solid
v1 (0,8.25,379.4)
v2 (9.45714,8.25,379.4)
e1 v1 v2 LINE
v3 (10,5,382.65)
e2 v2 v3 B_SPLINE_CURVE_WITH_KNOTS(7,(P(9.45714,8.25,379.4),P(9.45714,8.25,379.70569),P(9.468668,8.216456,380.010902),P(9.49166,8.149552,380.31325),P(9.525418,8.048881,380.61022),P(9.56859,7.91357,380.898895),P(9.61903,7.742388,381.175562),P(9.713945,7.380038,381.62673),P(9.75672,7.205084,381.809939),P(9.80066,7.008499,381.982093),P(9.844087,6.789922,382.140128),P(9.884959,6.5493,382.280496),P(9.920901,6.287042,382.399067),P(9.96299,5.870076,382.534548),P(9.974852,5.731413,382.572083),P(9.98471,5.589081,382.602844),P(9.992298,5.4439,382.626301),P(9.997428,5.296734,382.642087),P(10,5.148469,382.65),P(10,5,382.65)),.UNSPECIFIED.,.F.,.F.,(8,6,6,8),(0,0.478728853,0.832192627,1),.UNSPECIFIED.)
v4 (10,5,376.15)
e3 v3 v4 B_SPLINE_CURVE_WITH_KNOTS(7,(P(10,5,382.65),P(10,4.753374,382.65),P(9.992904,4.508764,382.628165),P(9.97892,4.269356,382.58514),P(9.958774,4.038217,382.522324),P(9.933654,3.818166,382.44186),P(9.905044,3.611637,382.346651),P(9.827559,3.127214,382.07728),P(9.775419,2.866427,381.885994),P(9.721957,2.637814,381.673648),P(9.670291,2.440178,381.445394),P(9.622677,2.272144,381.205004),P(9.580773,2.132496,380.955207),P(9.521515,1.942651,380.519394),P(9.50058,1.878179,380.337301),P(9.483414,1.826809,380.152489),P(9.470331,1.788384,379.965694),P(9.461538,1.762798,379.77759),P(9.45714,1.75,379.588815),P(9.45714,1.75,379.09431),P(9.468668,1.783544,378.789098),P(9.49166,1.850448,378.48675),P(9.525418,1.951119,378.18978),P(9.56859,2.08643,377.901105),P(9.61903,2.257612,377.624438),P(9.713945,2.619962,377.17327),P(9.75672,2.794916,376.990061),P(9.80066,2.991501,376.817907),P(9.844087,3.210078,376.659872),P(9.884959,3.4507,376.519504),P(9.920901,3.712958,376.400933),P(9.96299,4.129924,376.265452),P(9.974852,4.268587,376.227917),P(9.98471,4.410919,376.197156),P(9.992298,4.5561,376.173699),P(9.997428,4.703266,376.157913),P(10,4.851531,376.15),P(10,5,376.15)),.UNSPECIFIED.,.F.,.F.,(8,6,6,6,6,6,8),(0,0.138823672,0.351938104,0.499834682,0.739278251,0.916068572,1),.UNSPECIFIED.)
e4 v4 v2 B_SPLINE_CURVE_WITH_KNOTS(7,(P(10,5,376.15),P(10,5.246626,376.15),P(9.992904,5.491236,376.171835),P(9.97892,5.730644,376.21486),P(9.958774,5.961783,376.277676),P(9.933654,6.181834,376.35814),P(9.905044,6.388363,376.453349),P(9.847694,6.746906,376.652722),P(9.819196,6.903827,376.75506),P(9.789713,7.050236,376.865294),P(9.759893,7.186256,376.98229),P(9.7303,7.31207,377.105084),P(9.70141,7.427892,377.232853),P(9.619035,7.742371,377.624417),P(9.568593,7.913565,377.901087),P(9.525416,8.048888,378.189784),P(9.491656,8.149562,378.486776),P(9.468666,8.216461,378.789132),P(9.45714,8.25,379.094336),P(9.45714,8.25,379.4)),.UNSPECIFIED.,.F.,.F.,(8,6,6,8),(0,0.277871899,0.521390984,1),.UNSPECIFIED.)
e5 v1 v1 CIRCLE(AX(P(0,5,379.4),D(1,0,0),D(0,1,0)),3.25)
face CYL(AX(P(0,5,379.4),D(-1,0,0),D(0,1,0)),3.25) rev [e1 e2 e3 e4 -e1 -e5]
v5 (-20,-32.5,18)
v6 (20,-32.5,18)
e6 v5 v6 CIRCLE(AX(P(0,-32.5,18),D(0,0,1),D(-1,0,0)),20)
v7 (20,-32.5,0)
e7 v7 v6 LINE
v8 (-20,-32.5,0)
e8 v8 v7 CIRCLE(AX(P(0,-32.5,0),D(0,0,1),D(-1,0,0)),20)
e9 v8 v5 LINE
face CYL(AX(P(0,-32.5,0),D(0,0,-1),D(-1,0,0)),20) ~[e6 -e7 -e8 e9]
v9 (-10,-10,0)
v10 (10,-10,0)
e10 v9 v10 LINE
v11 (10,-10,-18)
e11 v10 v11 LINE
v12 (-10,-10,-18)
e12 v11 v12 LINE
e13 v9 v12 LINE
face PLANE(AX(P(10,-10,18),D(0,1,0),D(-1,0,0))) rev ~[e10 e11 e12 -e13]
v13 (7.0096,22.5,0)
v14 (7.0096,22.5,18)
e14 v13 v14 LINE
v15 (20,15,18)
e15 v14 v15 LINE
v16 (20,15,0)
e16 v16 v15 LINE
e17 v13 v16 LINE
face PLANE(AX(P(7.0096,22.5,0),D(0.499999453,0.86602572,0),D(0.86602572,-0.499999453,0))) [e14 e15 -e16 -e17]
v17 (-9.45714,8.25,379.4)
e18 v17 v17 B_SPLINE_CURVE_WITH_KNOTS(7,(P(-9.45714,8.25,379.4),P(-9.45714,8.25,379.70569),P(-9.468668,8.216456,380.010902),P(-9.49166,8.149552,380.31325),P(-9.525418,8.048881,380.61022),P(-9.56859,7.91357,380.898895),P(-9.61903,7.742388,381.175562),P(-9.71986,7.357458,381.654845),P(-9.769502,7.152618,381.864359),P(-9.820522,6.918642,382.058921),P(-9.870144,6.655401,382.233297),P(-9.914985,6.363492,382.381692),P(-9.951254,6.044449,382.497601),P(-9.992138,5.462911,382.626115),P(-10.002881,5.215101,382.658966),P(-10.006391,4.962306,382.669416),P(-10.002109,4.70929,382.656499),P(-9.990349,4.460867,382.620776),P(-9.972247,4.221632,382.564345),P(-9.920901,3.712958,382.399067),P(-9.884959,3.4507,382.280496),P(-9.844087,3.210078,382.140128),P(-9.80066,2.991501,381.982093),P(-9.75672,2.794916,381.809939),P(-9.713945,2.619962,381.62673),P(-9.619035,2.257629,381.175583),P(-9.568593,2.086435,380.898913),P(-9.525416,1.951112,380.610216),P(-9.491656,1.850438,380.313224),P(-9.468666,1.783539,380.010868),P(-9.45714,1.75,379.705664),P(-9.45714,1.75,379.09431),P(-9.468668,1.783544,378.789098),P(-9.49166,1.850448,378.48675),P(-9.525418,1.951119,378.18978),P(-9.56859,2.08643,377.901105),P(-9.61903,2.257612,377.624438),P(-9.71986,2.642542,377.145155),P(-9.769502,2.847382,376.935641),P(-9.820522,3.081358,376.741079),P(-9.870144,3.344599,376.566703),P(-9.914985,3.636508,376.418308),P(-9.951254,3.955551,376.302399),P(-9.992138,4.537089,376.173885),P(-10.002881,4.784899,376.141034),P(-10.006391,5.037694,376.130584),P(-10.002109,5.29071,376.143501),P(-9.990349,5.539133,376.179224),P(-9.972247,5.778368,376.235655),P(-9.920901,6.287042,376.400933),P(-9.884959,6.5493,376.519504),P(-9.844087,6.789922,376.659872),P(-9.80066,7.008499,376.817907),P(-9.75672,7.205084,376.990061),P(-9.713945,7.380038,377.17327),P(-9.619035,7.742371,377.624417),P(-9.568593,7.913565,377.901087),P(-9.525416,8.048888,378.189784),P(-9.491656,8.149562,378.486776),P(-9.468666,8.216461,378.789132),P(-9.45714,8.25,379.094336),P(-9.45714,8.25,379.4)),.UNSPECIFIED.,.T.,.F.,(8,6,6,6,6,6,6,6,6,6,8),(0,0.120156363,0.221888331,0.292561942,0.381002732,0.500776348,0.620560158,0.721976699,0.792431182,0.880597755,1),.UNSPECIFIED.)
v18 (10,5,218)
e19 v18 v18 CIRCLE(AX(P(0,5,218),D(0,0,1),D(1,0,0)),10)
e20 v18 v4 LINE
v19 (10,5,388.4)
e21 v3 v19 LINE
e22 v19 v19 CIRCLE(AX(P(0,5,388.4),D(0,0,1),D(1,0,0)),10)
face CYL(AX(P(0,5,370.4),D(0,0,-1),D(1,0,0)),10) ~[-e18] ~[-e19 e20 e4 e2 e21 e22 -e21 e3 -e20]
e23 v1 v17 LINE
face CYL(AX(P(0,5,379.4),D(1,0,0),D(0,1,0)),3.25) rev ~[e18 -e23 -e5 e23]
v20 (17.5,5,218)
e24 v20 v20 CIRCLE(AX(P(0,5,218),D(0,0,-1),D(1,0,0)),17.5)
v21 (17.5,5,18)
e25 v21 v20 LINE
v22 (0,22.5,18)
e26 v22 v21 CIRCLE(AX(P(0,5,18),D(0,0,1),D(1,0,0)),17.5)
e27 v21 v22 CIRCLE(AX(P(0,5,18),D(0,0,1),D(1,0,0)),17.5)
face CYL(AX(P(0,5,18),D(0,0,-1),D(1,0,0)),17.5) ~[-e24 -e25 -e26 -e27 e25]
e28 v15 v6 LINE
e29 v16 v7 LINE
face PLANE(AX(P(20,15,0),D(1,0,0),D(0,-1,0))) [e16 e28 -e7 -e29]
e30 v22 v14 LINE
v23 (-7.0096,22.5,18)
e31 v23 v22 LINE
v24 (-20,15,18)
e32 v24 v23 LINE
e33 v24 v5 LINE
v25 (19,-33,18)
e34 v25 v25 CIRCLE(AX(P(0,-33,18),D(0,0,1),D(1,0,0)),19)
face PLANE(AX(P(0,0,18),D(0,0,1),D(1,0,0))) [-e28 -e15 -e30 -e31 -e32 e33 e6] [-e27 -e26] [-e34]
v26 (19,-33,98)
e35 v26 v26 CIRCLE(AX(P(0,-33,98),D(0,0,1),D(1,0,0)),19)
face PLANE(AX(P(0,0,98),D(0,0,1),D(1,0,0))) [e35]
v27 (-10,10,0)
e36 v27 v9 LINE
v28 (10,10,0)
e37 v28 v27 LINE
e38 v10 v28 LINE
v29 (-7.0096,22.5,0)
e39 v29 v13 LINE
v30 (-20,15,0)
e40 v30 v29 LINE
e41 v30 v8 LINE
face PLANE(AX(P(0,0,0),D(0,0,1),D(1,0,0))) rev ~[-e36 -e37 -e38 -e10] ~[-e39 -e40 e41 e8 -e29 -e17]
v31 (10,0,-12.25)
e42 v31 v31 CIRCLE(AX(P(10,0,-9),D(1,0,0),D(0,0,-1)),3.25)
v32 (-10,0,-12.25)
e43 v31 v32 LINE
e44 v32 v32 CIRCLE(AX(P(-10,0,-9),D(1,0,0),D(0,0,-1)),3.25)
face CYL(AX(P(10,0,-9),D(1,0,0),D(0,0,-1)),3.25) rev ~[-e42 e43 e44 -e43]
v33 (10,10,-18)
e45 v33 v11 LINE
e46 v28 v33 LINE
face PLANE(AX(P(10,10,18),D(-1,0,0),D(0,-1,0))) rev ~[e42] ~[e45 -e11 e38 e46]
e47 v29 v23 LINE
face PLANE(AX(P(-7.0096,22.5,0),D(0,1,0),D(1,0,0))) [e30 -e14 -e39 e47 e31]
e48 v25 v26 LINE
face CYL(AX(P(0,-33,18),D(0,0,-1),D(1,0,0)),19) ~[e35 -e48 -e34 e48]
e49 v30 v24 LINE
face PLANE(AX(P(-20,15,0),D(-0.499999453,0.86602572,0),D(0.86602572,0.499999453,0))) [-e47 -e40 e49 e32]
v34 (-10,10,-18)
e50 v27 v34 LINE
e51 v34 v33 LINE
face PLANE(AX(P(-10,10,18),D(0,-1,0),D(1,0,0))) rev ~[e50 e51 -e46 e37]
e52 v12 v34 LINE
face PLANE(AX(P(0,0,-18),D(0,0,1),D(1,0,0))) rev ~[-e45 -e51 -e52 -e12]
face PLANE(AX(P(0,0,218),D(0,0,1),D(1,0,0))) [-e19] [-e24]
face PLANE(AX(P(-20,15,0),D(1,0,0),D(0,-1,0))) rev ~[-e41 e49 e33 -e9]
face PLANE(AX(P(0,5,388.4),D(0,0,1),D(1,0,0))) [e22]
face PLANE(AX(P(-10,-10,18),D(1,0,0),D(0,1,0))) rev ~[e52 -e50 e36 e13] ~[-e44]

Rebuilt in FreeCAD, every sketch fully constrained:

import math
import FreeCAD as App
import Part
import Sketcher
Q = App.Units.Quantity


def add_polygon(sketch, points):
    """Adds a closed chain of lines whose ends are joined by coincident constraints."""
    first, n = sketch.GeometryCount, len(points)
    for a, b in zip(points, points[1:] + points[:1]):
        sketch.addGeometry(Part.LineSegment(App.Vector(*a, 0), App.Vector(*b, 0)), False)
    for i in range(n):
        sketch.addConstraint(Sketcher.Constraint("Coincident", first + i, 2, first + (i + 1) % n, 1))

doc = App.newDocument("Part")
body = doc.addObject("PartDesign::Body", "Body")

# Sketch on XY plane
sketch1 = body.newObject("Sketcher::SketchObject", "Sketch")
sketch1.AttachmentSupport = (doc.getObject("XY_Plane"), [""])
sketch1.MapMode = "FlatFace"
sketch1.addGeometry(Part.LineSegment(App.Vector(-7, 22, 0), App.Vector(-20, 15, 0)), False)  # 0
sketch1.addGeometry(Part.LineSegment(App.Vector(-20, 15, 0), App.Vector(-20, -32, 0)), False)  # 1
sketch1.addGeometry(Part.ArcOfCircle(Part.Circle(App.Vector(0, -32, 0), App.Vector(0, 0, 1), 20), math.radians(180), math.radians(360)), False)  # 2
sketch1.addGeometry(Part.LineSegment(App.Vector(20, -32, 0), App.Vector(20, 15, 0)), False)  # 3
sketch1.addGeometry(Part.LineSegment(App.Vector(20, 15, 0), App.Vector(7, 22, 0)), False)  # 4
sketch1.addGeometry(Part.LineSegment(App.Vector(7, 22, 0), App.Vector(-7, 22, 0)), False)  # 5
add_polygon(sketch1, [(10, -10), (-10, -10), (-10, 10), (10, 10)])  # lines 6-9
sketch1.addConstraint(Sketcher.Constraint("Coincident", 0, 2, 1, 1))
sketch1.addConstraint(Sketcher.Constraint("Tangent", 1, 2, 2, 1))
sketch1.addConstraint(Sketcher.Constraint("Tangent", 2, 2, 3, 1))
sketch1.addConstraint(Sketcher.Constraint("Coincident", 3, 2, 4, 1))
sketch1.addConstraint(Sketcher.Constraint("Coincident", 4, 2, 5, 1))
sketch1.addConstraint(Sketcher.Constraint("Coincident", 5, 2, 0, 1))
sketch1.addConstraint(Sketcher.Constraint("Vertical", 1))
sketch1.addConstraint(Sketcher.Constraint("Vertical", 3))
sketch1.addConstraint(Sketcher.Constraint("Horizontal", 5))
sketch1.addConstraint(Sketcher.Constraint("Horizontal", 6))
sketch1.addConstraint(Sketcher.Constraint("Vertical", 7))
sketch1.addConstraint(Sketcher.Constraint("Horizontal", 8))
sketch1.addConstraint(Sketcher.Constraint("Vertical", 9))
sketch1.addConstraint(Sketcher.Constraint("Symmetric", 6, 2, 8, 2, -1, 1))
sketch1.addConstraint(Sketcher.Constraint("Symmetric", 0, 2, 3, 2, -2))
sketch1.addConstraint(Sketcher.Constraint("Equal", 8, 7))
sketch1.addConstraint(Sketcher.Constraint("Equal", 0, 4))
sketch1.addConstraint(Sketcher.Constraint("Radius", 2, 20.0))
sketch1.addConstraint(Sketcher.Constraint("DistanceX", 6, 2, 6, 1, 20.0))
sketch1.addConstraint(Sketcher.Constraint("Angle", 0, Q("-150 deg")))
sketch1.addConstraint(Sketcher.Constraint("Distance", 0, 15.0))
sketch1.addConstraint(Sketcher.Constraint("DistanceY", -1, 1, 0, 2, 15.0))
sketch1.addConstraint(Sketcher.Constraint("DistanceY", 2, 3, 4, 2, 55.0))
pad1 = body.newObject("PartDesign::Pad", "Pad")
pad1.Profile = sketch1
pad1.Length = 18

# Sketch on XY plane
sketch2 = body.newObject("Sketcher::SketchObject", "Sketch001")
sketch2.AttachmentSupport = (doc.getObject("XY_Plane"), [""])
sketch2.MapMode = "FlatFace"
sketch2.AttachmentOffset = App.Placement(App.Vector(0, 0, 18), App.Rotation())
add_polygon(sketch2, [(-10, 10), (-10, -10), (10, -10), (10, 10)])  # lines 0-3
sketch2.addConstraint(Sketcher.Constraint("Vertical", 0))
sketch2.addConstraint(Sketcher.Constraint("Horizontal", 1))
sketch2.addConstraint(Sketcher.Constraint("Vertical", 2))
sketch2.addConstraint(Sketcher.Constraint("Horizontal", 3))
sketch2.addConstraint(Sketcher.Constraint("Symmetric", 0, 2, 2, 2, -1, 1))
sketch2.addConstraint(Sketcher.Constraint("Equal", 3, 0))
sketch2.addConstraint(Sketcher.Constraint("DistanceX", 1, 1, 1, 2, 20.0))
pad2 = body.newObject("PartDesign::Pad", "Pad001")
pad2.Profile = sketch2
pad2.Length = 36
pad2.Reversed = True

# Sketch on YZ plane
sketch3 = body.newObject("Sketcher::SketchObject", "Sketch002")
sketch3.AttachmentSupport = (doc.getObject("YZ_Plane"), [""])
sketch3.MapMode = "FlatFace"
sketch3.AttachmentOffset = App.Placement(App.Vector(0, 0, 10), App.Rotation())
sketch3.addGeometry(Part.Circle(App.Vector(0, -9, 0), App.Vector(0, 0, 1), 3.2), False)
sketch3.addConstraint(Sketcher.Constraint("PointOnObject", 0, 3, -2))
sketch3.addConstraint(Sketcher.Constraint("Diameter", 0, 6.5))
sketch3.addConstraint(Sketcher.Constraint("DistanceY", 0, 3, -1, 1, 9.0))
pocket1 = body.newObject("PartDesign::Pocket", "Pocket")
pocket1.Profile = sketch3
pocket1.Type = "ThroughAll"

# Sketch on XY plane
sketch4 = body.newObject("Sketcher::SketchObject", "Sketch003")
sketch4.AttachmentSupport = (doc.getObject("XY_Plane"), [""])
sketch4.MapMode = "FlatFace"
sketch4.AttachmentOffset = App.Placement(App.Vector(0, 0, 18), App.Rotation())
sketch4.addGeometry(Part.Circle(App.Vector(0, 5, 0), App.Vector(0, 0, 1), 18), False)
sketch4.addConstraint(Sketcher.Constraint("PointOnObject", 0, 3, -2))
sketch4.addConstraint(Sketcher.Constraint("Diameter", 0, 35.0))
sketch4.addConstraint(Sketcher.Constraint("DistanceY", -1, 1, 0, 3, 5.0))
pad3 = body.newObject("PartDesign::Pad", "Pad002")
pad3.Profile = sketch4
pad3.Length = 200

# Sketch on XY plane
sketch5 = body.newObject("Sketcher::SketchObject", "Sketch004")
sketch5.AttachmentSupport = (doc.getObject("XY_Plane"), [""])
sketch5.MapMode = "FlatFace"
sketch5.AttachmentOffset = App.Placement(App.Vector(0, 0, 18), App.Rotation())
sketch5.addGeometry(Part.Circle(App.Vector(0, -33, 0), App.Vector(0, 0, 1), 19), False)
sketch5.addConstraint(Sketcher.Constraint("PointOnObject", 0, 3, -2))
sketch5.addConstraint(Sketcher.Constraint("Diameter", 0, 38.0))
sketch5.addConstraint(Sketcher.Constraint("DistanceY", 0, 3, -1, 1, 33.0))
pad4 = body.newObject("PartDesign::Pad", "Pad003")
pad4.Profile = sketch5
pad4.Length = 80

# Sketch on XY plane
sketch6 = body.newObject("Sketcher::SketchObject", "Sketch005")
sketch6.AttachmentSupport = (doc.getObject("XY_Plane"), [""])
sketch6.MapMode = "FlatFace"
sketch6.AttachmentOffset = App.Placement(App.Vector(0, 0, 218), App.Rotation())
sketch6.addGeometry(Part.Circle(App.Vector(0, 5, 0), App.Vector(0, 0, 1), 10), False)
sketch6.addConstraint(Sketcher.Constraint("PointOnObject", 0, 3, -2))
sketch6.addConstraint(Sketcher.Constraint("Diameter", 0, 20.0))
sketch6.addConstraint(Sketcher.Constraint("DistanceY", -1, 1, 0, 3, 5.0))
pad5 = body.newObject("PartDesign::Pad", "Pad004")
pad5.Profile = sketch6
pad5.Length = 152.4

# Sketch on XY plane
sketch7 = body.newObject("Sketcher::SketchObject", "Sketch006")
sketch7.AttachmentSupport = (doc.getObject("XY_Plane"), [""])
sketch7.MapMode = "FlatFace"
sketch7.AttachmentOffset = App.Placement(App.Vector(0, 0, 370.4), App.Rotation())
sketch7.addGeometry(Part.Circle(App.Vector(0, 5, 0), App.Vector(0, 0, 1), 10), False)
sketch7.addConstraint(Sketcher.Constraint("PointOnObject", 0, 3, -2))
sketch7.addConstraint(Sketcher.Constraint("Diameter", 0, 20.0))
sketch7.addConstraint(Sketcher.Constraint("DistanceY", -1, 1, 0, 3, 5.0))
pad6 = body.newObject("PartDesign::Pad", "Pad005")
pad6.Profile = sketch7
pad6.Length = 18

# Sketch on YZ plane
sketch8 = body.newObject("Sketcher::SketchObject", "Sketch007")
sketch8.AttachmentSupport = (doc.getObject("YZ_Plane"), [""])
sketch8.MapMode = "FlatFace"
sketch8.addGeometry(Part.Circle(App.Vector(5, 379.4, 0), App.Vector(0, 0, 1), 3.2), False)
sketch8.addConstraint(Sketcher.Constraint("Diameter", 0, 6.5))
sketch8.addConstraint(Sketcher.Constraint("DistanceX", -1, 1, 0, 3, 5.0))
sketch8.addConstraint(Sketcher.Constraint("DistanceY", -1, 1, 0, 3, 379.4))
pocket2 = body.newObject("PartDesign::Pocket", "Pocket001")
pocket2.Profile = sketch8
pocket2.Type = "ThroughAll"
pocket2.Midplane = True

doc.recompute()
